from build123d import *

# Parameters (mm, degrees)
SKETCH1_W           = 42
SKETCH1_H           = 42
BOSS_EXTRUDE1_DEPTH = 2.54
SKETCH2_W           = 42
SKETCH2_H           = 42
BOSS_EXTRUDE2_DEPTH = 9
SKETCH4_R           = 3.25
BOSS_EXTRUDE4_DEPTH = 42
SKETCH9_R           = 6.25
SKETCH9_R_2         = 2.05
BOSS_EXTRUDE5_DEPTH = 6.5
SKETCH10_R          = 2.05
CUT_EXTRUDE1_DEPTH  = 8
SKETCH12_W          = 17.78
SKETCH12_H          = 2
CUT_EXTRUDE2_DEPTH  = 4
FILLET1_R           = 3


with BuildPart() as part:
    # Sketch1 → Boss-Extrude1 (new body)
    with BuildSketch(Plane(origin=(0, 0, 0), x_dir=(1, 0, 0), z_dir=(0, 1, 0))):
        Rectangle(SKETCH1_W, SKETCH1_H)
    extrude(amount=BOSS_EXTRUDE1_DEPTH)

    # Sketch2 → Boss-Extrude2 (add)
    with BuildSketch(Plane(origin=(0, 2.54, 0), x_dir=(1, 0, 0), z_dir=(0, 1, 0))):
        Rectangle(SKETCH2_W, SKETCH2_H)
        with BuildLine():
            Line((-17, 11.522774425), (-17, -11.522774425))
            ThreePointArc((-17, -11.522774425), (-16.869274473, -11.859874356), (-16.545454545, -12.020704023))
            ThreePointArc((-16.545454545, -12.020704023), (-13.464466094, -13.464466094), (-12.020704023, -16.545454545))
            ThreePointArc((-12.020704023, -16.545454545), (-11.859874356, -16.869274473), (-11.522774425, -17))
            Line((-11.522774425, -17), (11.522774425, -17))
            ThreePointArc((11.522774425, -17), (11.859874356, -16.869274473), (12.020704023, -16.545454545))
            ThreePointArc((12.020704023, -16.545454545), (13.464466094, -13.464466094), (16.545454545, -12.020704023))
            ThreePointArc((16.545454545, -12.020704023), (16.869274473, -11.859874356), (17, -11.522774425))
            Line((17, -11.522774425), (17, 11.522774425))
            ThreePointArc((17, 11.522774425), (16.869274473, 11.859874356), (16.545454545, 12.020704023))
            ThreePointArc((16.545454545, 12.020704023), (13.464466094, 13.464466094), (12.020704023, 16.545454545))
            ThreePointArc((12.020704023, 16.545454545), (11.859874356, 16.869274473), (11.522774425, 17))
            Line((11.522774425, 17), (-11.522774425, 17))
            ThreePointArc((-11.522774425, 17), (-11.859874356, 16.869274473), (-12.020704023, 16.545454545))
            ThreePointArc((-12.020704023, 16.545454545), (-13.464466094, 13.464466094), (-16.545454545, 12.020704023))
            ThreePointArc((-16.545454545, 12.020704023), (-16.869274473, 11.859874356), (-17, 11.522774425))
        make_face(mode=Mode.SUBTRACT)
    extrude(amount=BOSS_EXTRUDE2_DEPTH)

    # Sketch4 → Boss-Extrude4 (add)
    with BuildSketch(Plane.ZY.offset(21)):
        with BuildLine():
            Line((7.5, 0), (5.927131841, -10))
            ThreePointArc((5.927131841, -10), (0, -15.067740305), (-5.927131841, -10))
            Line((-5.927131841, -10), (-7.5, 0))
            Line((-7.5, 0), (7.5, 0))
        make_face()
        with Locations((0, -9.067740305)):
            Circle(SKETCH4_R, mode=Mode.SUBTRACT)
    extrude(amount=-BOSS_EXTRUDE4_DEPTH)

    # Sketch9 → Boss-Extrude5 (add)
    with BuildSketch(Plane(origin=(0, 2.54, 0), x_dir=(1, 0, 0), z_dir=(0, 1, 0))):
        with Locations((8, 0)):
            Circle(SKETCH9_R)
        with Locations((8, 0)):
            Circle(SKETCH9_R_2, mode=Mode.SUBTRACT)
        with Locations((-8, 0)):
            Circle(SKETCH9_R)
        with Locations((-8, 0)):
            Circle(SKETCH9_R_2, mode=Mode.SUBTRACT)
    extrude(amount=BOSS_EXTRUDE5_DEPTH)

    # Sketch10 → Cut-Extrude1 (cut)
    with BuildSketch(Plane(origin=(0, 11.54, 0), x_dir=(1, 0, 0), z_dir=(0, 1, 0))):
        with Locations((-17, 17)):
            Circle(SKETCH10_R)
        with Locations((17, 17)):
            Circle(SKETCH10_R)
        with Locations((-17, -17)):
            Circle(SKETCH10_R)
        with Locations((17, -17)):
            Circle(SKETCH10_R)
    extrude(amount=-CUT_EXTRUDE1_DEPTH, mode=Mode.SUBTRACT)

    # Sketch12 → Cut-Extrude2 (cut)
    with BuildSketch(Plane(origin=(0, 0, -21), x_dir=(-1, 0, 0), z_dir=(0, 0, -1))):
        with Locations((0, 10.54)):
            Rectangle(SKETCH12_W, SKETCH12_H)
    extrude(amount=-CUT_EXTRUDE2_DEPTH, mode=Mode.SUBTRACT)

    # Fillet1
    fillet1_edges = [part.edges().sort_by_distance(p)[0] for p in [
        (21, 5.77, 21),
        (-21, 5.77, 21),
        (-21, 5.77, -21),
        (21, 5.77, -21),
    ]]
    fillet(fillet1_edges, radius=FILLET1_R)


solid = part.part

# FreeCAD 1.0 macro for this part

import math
import FreeCAD as App
import Part
import Sketcher


def edges_at(feature, points):
    """Names of the edges that pass closest to the given points."""
    edges = feature.Shape.Edges
    near = lambda p: min(range(len(edges)), key=lambda i: edges[i].distToShape(Part.Vertex(*p))[0])
    return sorted({f"Edge{near(p) + 1}" for p in points})

doc = App.newDocument("Part")
body = doc.addObject("PartDesign::Body", "Body")

sketch1 = doc.addObject("Sketcher::SketchObject", "Sketch")
body.addObject(sketch1)
sketch1.AttachmentSupport = (doc.XZ_Plane, [""])
sketch1.MapMode = "FlatFace"
sketch1.addGeometry([
    Part.LineSegment(App.Vector(-21, -21, 0), App.Vector(-21, 21, 0)),
    Part.LineSegment(App.Vector(-21, 21, 0), App.Vector(21, 21, 0)),
    Part.LineSegment(App.Vector(21, 21, 0), App.Vector(21, -21, 0)),
    Part.LineSegment(App.Vector(21, -21, 0), App.Vector(-21, -21, 0)),
], False)
sketch1.addConstraint([
    Sketcher.Constraint("Coincident", 0, 2, 1, 1),
    Sketcher.Constraint("Coincident", 1, 2, 2, 1),
    Sketcher.Constraint("Coincident", 2, 2, 3, 1),
    Sketcher.Constraint("Coincident", 3, 2, 0, 1),
    Sketcher.Constraint("Vertical", 0),
    Sketcher.Constraint("Horizontal", 1),
    Sketcher.Constraint("Vertical", 2),
    Sketcher.Constraint("Horizontal", 3),
    Sketcher.Constraint("Symmetric", 0, 2, 2, 2, -1, 1),
    Sketcher.Constraint("Equal", 3, 0),
    Sketcher.Constraint("DistanceX", 1, 1, 1, 2, 42.0),
])
pad1 = doc.addObject("PartDesign::Pad", "Pad")
body.addObject(pad1)
pad1.Profile = sketch1
pad1.Length = 2.54
pad1.Reversed = True

sketch2 = doc.addObject("Sketcher::SketchObject", "Sketch001")
body.addObject(sketch2)
sketch2.AttachmentSupport = (doc.XZ_Plane, [""])
sketch2.MapMode = "FlatFace"
sketch2.AttachmentOffset = App.Placement(App.Vector(0, 0, -2.54), App.Rotation())
sketch2.addGeometry([
    Part.LineSegment(App.Vector(-21, -21, 0), App.Vector(-21, 21, 0)),
    Part.LineSegment(App.Vector(-21, 21, 0), App.Vector(21, 21, 0)),
    Part.LineSegment(App.Vector(21, 21, 0), App.Vector(21, -21, 0)),
    Part.LineSegment(App.Vector(21, -21, 0), App.Vector(-21, -21, 0)),
    Part.LineSegment(App.Vector(-17, 11.5, 0), App.Vector(-17, -11.5, 0)),
    Part.ArcOfCircle(Part.Circle(App.Vector(-16.5, -11.5, 0), App.Vector(0, 0, 1), 0.5), math.radians(180), math.radians(265)),
    Part.ArcOfCircle(Part.Circle(App.Vector(-17, -17, 0), App.Vector(0, 0, 1), 5), math.radians(5), math.radians(85)),
    Part.ArcOfCircle(Part.Circle(App.Vector(-11.5, -16.5, 0), App.Vector(0, 0, 1), 0.5), math.radians(-175), math.radians(-90)),
    Part.LineSegment(App.Vector(-11.5, -17, 0), App.Vector(11.5, -17, 0)),
    Part.ArcOfCircle(Part.Circle(App.Vector(11.5, -16.5, 0), App.Vector(0, 0, 1), 0.5), math.radians(-90), math.radians(-5)),
    Part.ArcOfCircle(Part.Circle(App.Vector(17, -17, 0), App.Vector(0, 0, 1), 5), math.radians(95), math.radians(175)),
    Part.ArcOfCircle(Part.Circle(App.Vector(16.5, -11.5, 0), App.Vector(0, 0, 1), 0.5), math.radians(-85), math.radians(0)),
    Part.LineSegment(App.Vector(17, -11.5, 0), App.Vector(17, 11.5, 0)),
    Part.ArcOfCircle(Part.Circle(App.Vector(16.5, 11.5, 0), App.Vector(0, 0, 1), 0.5), math.radians(0), math.radians(85)),
    Part.ArcOfCircle(Part.Circle(App.Vector(17, 17, 0), App.Vector(0, 0, 1), 5), math.radians(-175), math.radians(-95)),
    Part.ArcOfCircle(Part.Circle(App.Vector(11.5, 16.5, 0), App.Vector(0, 0, 1), 0.5), math.radians(5), math.radians(90)),
    Part.LineSegment(App.Vector(11.5, 17, 0), App.Vector(-11.5, 17, 0)),
    Part.ArcOfCircle(Part.Circle(App.Vector(-11.5, 16.5, 0), App.Vector(0, 0, 1), 0.5), math.radians(90), math.radians(175)),
    Part.ArcOfCircle(Part.Circle(App.Vector(-17, 17, 0), App.Vector(0, 0, 1), 5), math.radians(-85), math.radians(-5)),
    Part.ArcOfCircle(Part.Circle(App.Vector(-16.5, 11.5, 0), App.Vector(0, 0, 1), 0.5), math.radians(95), math.radians(180)),
], False)
sketch2.addConstraint([
    Sketcher.Constraint("Coincident", 0, 2, 1, 1),
    Sketcher.Constraint("Coincident", 1, 2, 2, 1),
    Sketcher.Constraint("Coincident", 2, 2, 3, 1),
    Sketcher.Constraint("Coincident", 3, 2, 0, 1),
    Sketcher.Constraint("Tangent", 4, 2, 5, 1),
    Sketcher.Constraint("Tangent", 5, 2, 6, 2),
    Sketcher.Constraint("Tangent", 6, 1, 7, 1),
    Sketcher.Constraint("Tangent", 7, 2, 8, 1),
    Sketcher.Constraint("Tangent", 8, 2, 9, 1),
    Sketcher.Constraint("Tangent", 9, 2, 10, 2),
    Sketcher.Constraint("Tangent", 10, 1, 11, 1),
    Sketcher.Constraint("Tangent", 11, 2, 12, 1),
    Sketcher.Constraint("Tangent", 12, 2, 13, 1),
    Sketcher.Constraint("Tangent", 13, 2, 14, 2),
    Sketcher.Constraint("Tangent", 14, 1, 15, 1),
    Sketcher.Constraint("Tangent", 15, 2, 16, 1),
    Sketcher.Constraint("Tangent", 16, 2, 17, 1),
    Sketcher.Constraint("Tangent", 17, 2, 18, 2),
    Sketcher.Constraint("Tangent", 18, 1, 19, 1),
    Sketcher.Constraint("Tangent", 19, 2, 4, 1),
    Sketcher.Constraint("Vertical", 0),
    Sketcher.Constraint("Horizontal", 1),
    Sketcher.Constraint("Vertical", 2),
    Sketcher.Constraint("Horizontal", 3),
    Sketcher.Constraint("Vertical", 4),
    Sketcher.Constraint("Horizontal", 8),
    Sketcher.Constraint("Vertical", 12),
    Sketcher.Constraint("Horizontal", 16),
    Sketcher.Constraint("Equal", 5, 7),
    Sketcher.Constraint("Equal", 7, 9),
    Sketcher.Constraint("Equal", 6, 10),
    Sketcher.Constraint("Equal", 9, 11),
    Sketcher.Constraint("Equal", 11, 13),
    Sketcher.Constraint("Equal", 10, 14),
    Sketcher.Constraint("Equal", 13, 15),
    Sketcher.Constraint("Equal", 15, 17),
    Sketcher.Constraint("Equal", 14, 18),
    Sketcher.Constraint("Equal", 17, 19),
    Sketcher.Constraint("Symmetric", 5, 3, 13, 3, -1, 1),
    Sketcher.Constraint("Symmetric", 7, 3, 15, 3, -1, 1),
    Sketcher.Constraint("Symmetric", 10, 3, 18, 3, -1, 1),
    Sketcher.Constraint("Symmetric", 0, 2, 2, 2, -1, 1),
    Sketcher.Constraint("Symmetric", 6, 3, 10, 3, -2),
    Sketcher.Constraint("Horizontal", 10, 3, 7, 2),
    Sketcher.Constraint("Vertical", 18, 3, 4, 2),
    Sketcher.Constraint("Equal", 3, 0),
    Sketcher.Constraint("Equal", 16, 4),
    Sketcher.Constraint("Radius", 6, 5.0),
    Sketcher.Constraint("Radius", 5, 0.5),
    Sketcher.Constraint("DistanceX", 1, 1, 1, 2, 42.0),
    Sketcher.Constraint("DistanceX", 6, 3, -1, 1, 17.0),
])
pad2 = doc.addObject("PartDesign::Pad", "Pad001")
body.addObject(pad2)
pad2.Profile = sketch2
pad2.Length = 9
pad2.Reversed = True

sketch3 = doc.addObject("Sketcher::SketchObject", "Sketch002")
body.addObject(sketch3)
sketch3.AttachmentSupport = (doc.YZ_Plane, [""])
sketch3.MapMode = "FlatFace"
sketch3.AttachmentOffset = App.Placement(App.Vector(0, 0, -21), App.Rotation())
sketch3.addGeometry([
    Part.LineSegment(App.Vector(-10, 5.9, 0), App.Vector(0, 7.5, 0)),
    Part.LineSegment(App.Vector(0, 7.5, 0), App.Vector(0, -7.5, 0)),
    Part.LineSegment(App.Vector(0, -7.5, 0), App.Vector(-10, -5.9, 0)),
    Part.ArcOfCircle(Part.Circle(App.Vector(-9.1, 0, 0), App.Vector(0, 0, 1), 6), math.radians(99), math.radians(261)),
    Part.Circle(App.Vector(-9.1, 0, 0), App.Vector(0, 0, 1), 3.2),
], False)
sketch3.addConstraint([
    Sketcher.Constraint("Coincident", 0, 2, 1, 1),
    Sketcher.Constraint("Coincident", 1, 2, 2, 1),
    Sketcher.Constraint("Tangent", 2, 2, 3, 2),
    Sketcher.Constraint("Tangent", 3, 1, 0, 1),
    Sketcher.Constraint("Vertical", 1),
    Sketcher.Constraint("Coincident", 4, 3, 3, 3),
    Sketcher.Constraint("Symmetric", 0, 2, 1, 2, -1, 1),
    Sketcher.Constraint("PointOnObject", 3, 3, -1),
    Sketcher.Constraint("Radius", 3, 6.0),
    Sketcher.Constraint("Diameter", 4, 6.5),
    Sketcher.Constraint("DistanceY", 1, 2, 1, 1, 15.0),
    Sketcher.Constraint("DistanceX", 2, 2, -1, 1, 10.0),
])
pad3 = doc.addObject("PartDesign::Pad", "Pad002")
body.addObject(pad3)
pad3.Profile = sketch3
pad3.Length = 42

sketch4 = doc.addObject("Sketcher::SketchObject", "Sketch003")
body.addObject(sketch4)
sketch4.AttachmentSupport = (doc.XZ_Plane, [""])
sketch4.MapMode = "FlatFace"
sketch4.AttachmentOffset = App.Placement(App.Vector(0, 0, -2.54), App.Rotation())
sketch4.addGeometry([
    Part.Circle(App.Vector(8, 0, 0), App.Vector(0, 0, 1), 6.2),
    Part.Circle(App.Vector(8, 0, 0), App.Vector(0, 0, 1), 2),
    Part.Circle(App.Vector(-8, 0, 0), App.Vector(0, 0, 1), 6.2),
    Part.Circle(App.Vector(-8, 0, 0), App.Vector(0, 0, 1), 2),
], False)
sketch4.addConstraint([
    Sketcher.Constraint("Coincident", 1, 3, 0, 3),
    Sketcher.Constraint("Coincident", 3, 3, 2, 3),
    Sketcher.Constraint("Equal", 0, 2),
    Sketcher.Constraint("Equal", 1, 3),
    Sketcher.Constraint("Symmetric", 0, 3, 2, 3, -1, 1),
    Sketcher.Constraint("PointOnObject", 0, 3, -1),
    Sketcher.Constraint("Diameter", 0, 12.5),
    Sketcher.Constraint("Diameter", 1, 4.1),
    Sketcher.Constraint("DistanceX", -1, 1, 0, 3, 8.0),
])
pad4 = doc.addObject("PartDesign::Pad", "Pad003")
body.addObject(pad4)
pad4.Profile = sketch4
pad4.Length = 6.5
pad4.Reversed = True

sketch5 = doc.addObject("Sketcher::SketchObject", "Sketch004")
body.addObject(sketch5)
sketch5.AttachmentSupport = (doc.XZ_Plane, [""])
sketch5.MapMode = "FlatFace"
sketch5.AttachmentOffset = App.Placement(App.Vector(0, 0, -11.54), App.Rotation())
sketch5.addGeometry([
    Part.Circle(App.Vector(-17, -17, 0), App.Vector(0, 0, 1), 2),
    Part.Circle(App.Vector(17, -17, 0), App.Vector(0, 0, 1), 2),
    Part.Circle(App.Vector(-17, 17, 0), App.Vector(0, 0, 1), 2),
    Part.Circle(App.Vector(17, 17, 0), App.Vector(0, 0, 1), 2),
], False)
sketch5.addConstraint([
    Sketcher.Constraint("Equal", 0, 1),
    Sketcher.Constraint("Equal", 1, 2),
    Sketcher.Constraint("Equal", 2, 3),
    Sketcher.Constraint("Symmetric", 1, 3, 2, 3, -1, 1),
    Sketcher.Constraint("Symmetric", 0, 3, 3, 3, -1, 1),
    Sketcher.Constraint("Symmetric", 0, 3, 1, 3, -2),
    Sketcher.Constraint("Diameter", 0, 4.1),
    Sketcher.Constraint("DistanceX", 0, 3, -1, 1, 17.0),
    Sketcher.Constraint("DistanceY", 0, 3, -1, 1, 17.0),
])
pocket1 = doc.addObject("PartDesign::Pocket", "Pocket")
body.addObject(pocket1)
pocket1.Profile = sketch5
pocket1.Length = 8
pocket1.Reversed = True

sketch6 = doc.addObject("Sketcher::SketchObject", "Sketch005")
body.addObject(sketch6)
sketch6.AttachmentSupport = (doc.XY_Plane, [""])
sketch6.MapMode = "FlatFace"
sketch6.AttachmentOffset = App.Placement(App.Vector(0, 0, -21), App.Rotation())
sketch6.addGeometry([
    Part.LineSegment(App.Vector(8.9, 11.5, 0), App.Vector(8.9, 9.5, 0)),
    Part.LineSegment(App.Vector(8.9, 9.5, 0), App.Vector(-8.9, 9.5, 0)),
    Part.LineSegment(App.Vector(-8.9, 9.5, 0), App.Vector(-8.9, 11.5, 0)),
    Part.LineSegment(App.Vector(-8.9, 11.5, 0), App.Vector(8.9, 11.5, 0)),
], False)
sketch6.addConstraint([
    Sketcher.Constraint("Coincident", 0, 2, 1, 1),
    Sketcher.Constraint("Coincident", 1, 2, 2, 1),
    Sketcher.Constraint("Coincident", 2, 2, 3, 1),
    Sketcher.Constraint("Coincident", 3, 2, 0, 1),
    Sketcher.Constraint("Vertical", 0),
    Sketcher.Constraint("Horizontal", 1),
    Sketcher.Constraint("Vertical", 2),
    Sketcher.Constraint("Horizontal", 3),
    Sketcher.Constraint("DistanceY", 0, 2, 0, 1, 2.0),
    Sketcher.Constraint("DistanceX", 1, 2, 1, 1, 17.78),
    Sketcher.Constraint("DistanceX", -1, 1, 0, 2, 8.89),
    Sketcher.Constraint("DistanceY", -1, 1, 0, 2, 9.54),
])
pocket2 = doc.addObject("PartDesign::Pocket", "Pocket001")
body.addObject(pocket2)
pocket2.Profile = sketch6
pocket2.Length = 4
pocket2.Reversed = True
doc.recompute()

fillet = doc.addObject("PartDesign::Fillet", "Fillet")
body.addObject(fillet)
fillet.Base = (pocket2, edges_at(pocket2, [
    (21, 5.77, 21),
    (-21, 5.77, 21),
    (-21, 5.77, -21),
    (21, 5.77, -21),
]))
fillet.Radius = 3

doc.recompute()
